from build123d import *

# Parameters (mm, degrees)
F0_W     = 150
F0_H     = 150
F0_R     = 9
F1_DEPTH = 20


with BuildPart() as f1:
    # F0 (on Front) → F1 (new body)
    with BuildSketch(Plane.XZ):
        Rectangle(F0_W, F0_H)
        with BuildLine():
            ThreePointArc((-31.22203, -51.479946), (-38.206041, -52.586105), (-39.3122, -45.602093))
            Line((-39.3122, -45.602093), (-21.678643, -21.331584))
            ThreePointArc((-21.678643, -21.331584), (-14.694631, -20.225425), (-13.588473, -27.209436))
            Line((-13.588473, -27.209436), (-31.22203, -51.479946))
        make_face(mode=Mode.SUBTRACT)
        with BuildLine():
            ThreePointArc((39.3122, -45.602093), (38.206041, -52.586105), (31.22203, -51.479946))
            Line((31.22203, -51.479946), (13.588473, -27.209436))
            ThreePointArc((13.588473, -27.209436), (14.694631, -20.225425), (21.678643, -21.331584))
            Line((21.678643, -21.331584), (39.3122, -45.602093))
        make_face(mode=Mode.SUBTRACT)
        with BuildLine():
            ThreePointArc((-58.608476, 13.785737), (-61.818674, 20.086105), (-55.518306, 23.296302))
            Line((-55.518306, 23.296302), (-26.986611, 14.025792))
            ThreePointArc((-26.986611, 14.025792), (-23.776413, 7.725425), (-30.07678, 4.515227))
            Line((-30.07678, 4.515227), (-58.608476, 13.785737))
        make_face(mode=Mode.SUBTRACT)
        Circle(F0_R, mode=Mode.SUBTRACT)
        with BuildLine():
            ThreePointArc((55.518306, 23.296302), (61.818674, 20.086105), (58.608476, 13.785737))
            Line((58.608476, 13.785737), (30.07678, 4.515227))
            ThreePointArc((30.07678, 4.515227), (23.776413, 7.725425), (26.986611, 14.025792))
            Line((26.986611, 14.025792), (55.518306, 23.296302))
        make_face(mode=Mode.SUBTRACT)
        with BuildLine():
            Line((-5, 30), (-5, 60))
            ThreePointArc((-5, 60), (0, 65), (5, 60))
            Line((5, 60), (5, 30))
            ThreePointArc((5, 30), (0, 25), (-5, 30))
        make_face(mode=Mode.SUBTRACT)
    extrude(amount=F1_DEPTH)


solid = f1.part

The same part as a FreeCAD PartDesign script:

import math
import FreeCAD as App
import Part
import Sketcher
Q = App.Units.Quantity

doc = App.newDocument("Part")
body = doc.addObject("PartDesign::Body", "Body")

sketch1 = body.newObject("Sketcher::SketchObject", "Sketch")
sketch1.AttachmentSupport = (doc.getObject("XZ_Plane"), [""])
sketch1.MapMode = "FlatFace"
sketch1.addGeometry([
    Part.LineSegment(App.Vector(-75, 75, 0), App.Vector(-75, -75, 0)),
    Part.LineSegment(App.Vector(-75, -75, 0), App.Vector(75, -75, 0)),
    Part.LineSegment(App.Vector(75, -75, 0), App.Vector(75, 75, 0)),
    Part.LineSegment(App.Vector(75, 75, 0), App.Vector(-75, 75, 0)),
    Part.LineSegment(App.Vector(-13.6, -27.2, 0), App.Vector(-31.2, -51.5, 0)),
    Part.ArcOfCircle(Part.Circle(App.Vector(-35.3, -48.5, 0), App.Vector(0, 0, 1), 5), math.radians(144), math.radians(324)),
    Part.LineSegment(App.Vector(-39.3, -45.6, 0), App.Vector(-21.7, -21.3, 0)),
    Part.ArcOfCircle(Part.Circle(App.Vector(-17.6, -24.3, 0), App.Vector(0, 0, 1), 5), math.radians(-36), math.radians(144)),
    Part.Circle(App.Vector(0, 0, 0), App.Vector(0, 0, 1), 9),
    Part.LineSegment(App.Vector(21.7, -21.3, 0), App.Vector(39.3, -45.6, 0)),
    Part.ArcOfCircle(Part.Circle(App.Vector(35.3, -48.5, 0), App.Vector(0, 0, 1), 5), math.radians(-144), math.radians(36)),
    Part.LineSegment(App.Vector(31.2, -51.5, 0), App.Vector(13.6, -27.2, 0)),
    Part.ArcOfCircle(Part.Circle(App.Vector(17.6, -24.3, 0), App.Vector(0, 0, 1), 5), math.radians(36), math.radians(216)),
    Part.LineSegment(App.Vector(-30.1, 4.5, 0), App.Vector(-58.6, 13.8, 0)),
    Part.ArcOfCircle(Part.Circle(App.Vector(-57.1, 18.5, 0), App.Vector(0, 0, 1), 5), math.radians(72), math.radians(252)),
    Part.LineSegment(App.Vector(-55.5, 23.3, 0), App.Vector(-27, 14, 0)),
    Part.ArcOfCircle(Part.Circle(App.Vector(-28.5, 9.3, 0), App.Vector(0, 0, 1), 5), math.radians(-108), math.radians(72)),
    Part.ArcOfCircle(Part.Circle(App.Vector(0, 30, 0), App.Vector(0, 0, 1), 5), math.radians(180), math.radians(360)),
    Part.LineSegment(App.Vector(-5, 30, 0), App.Vector(-5, 60, 0)),
    Part.ArcOfCircle(Part.Circle(App.Vector(0, 60, 0), App.Vector(0, 0, 1), 5), math.radians(0), math.radians(180)),
    Part.LineSegment(App.Vector(5, 60, 0), App.Vector(5, 30, 0)),
    Part.LineSegment(App.Vector(27, 14, 0), App.Vector(55.5, 23.3, 0)),
    Part.ArcOfCircle(Part.Circle(App.Vector(57.1, 18.5, 0), App.Vector(0, 0, 1), 5), math.radians(-72), math.radians(108)),
    Part.LineSegment(App.Vector(58.6, 13.8, 0), App.Vector(30.1, 4.5, 0)),
    Part.ArcOfCircle(Part.Circle(App.Vector(28.5, 9.3, 0), App.Vector(0, 0, 1), 5), math.radians(108), math.radians(288)),
], False)
sketch1.addConstraint([
    Sketcher.Constraint("Coincident", 0, 2, 1, 1),
    Sketcher.Constraint("Coincident", 1, 2, 2, 1),
    Sketcher.Constraint("Coincident", 2, 2, 3, 1),
    Sketcher.Constraint("Coincident", 3, 2, 0, 1),
    Sketcher.Constraint("Tangent", 4, 2, 5, 2),
    Sketcher.Constraint("Tangent", 5, 1, 6, 1),
    Sketcher.Constraint("Tangent", 6, 2, 7, 2),
    Sketcher.Constraint("Tangent", 7, 1, 4, 1),
    Sketcher.Constraint("Tangent", 9, 2, 10, 2),
    Sketcher.Constraint("Tangent", 10, 1, 11, 1),
    Sketcher.Constraint("Tangent", 11, 2, 12, 2),
    Sketcher.Constraint("Tangent", 12, 1, 9, 1),
    Sketcher.Constraint("Tangent", 13, 2, 14, 2),
    Sketcher.Constraint("Tangent", 14, 1, 15, 1),
    Sketcher.Constraint("Tangent", 15, 2, 16, 2),
    Sketcher.Constraint("Tangent", 16, 1, 13, 1),
    Sketcher.Constraint("Tangent", 17, 1, 18, 1),
    Sketcher.Constraint("Tangent", 18, 2, 19, 2),
    Sketcher.Constraint("Tangent", 19, 1, 20, 1),
    Sketcher.Constraint("Tangent", 20, 2, 17, 2),
    Sketcher.Constraint("Tangent", 21, 2, 22, 2),
    Sketcher.Constraint("Tangent", 22, 1, 23, 1),
    Sketcher.Constraint("Tangent", 23, 2, 24, 2),
    Sketcher.Constraint("Tangent", 24, 1, 21, 1),
    Sketcher.Constraint("Vertical", 0),
    Sketcher.Constraint("Horizontal", 1),
    Sketcher.Constraint("Vertical", 2),
    Sketcher.Constraint("Horizontal", 3),
    Sketcher.Constraint("Vertical", 18),
    Sketcher.Constraint("Vertical", 20),
    Sketcher.Constraint("Coincident", 8, 3, -1, 1),
    Sketcher.Constraint("Equal", 5, 7),
    Sketcher.Constraint("Equal", 7, 10),
    Sketcher.Constraint("Equal", 10, 12),
    Sketcher.Constraint("Equal", 12, 14),
    Sketcher.Constraint("Equal", 14, 16),
    Sketcher.Constraint("Equal", 16, 17),
    Sketcher.Constraint("Equal", 19, 22),
    Sketcher.Constraint("Equal", 22, 24),
    Sketcher.Constraint("Symmetric", 0, 2, 2, 2, -1, 1),
    Sketcher.Constraint("Symmetric", 5, 3, 10, 3, -2),
    Sketcher.Constraint("Symmetric", 7, 3, 12, 3, -2),
    Sketcher.Constraint("Symmetric", 14, 3, 22, 3, -2),
    Sketcher.Constraint("Symmetric", 16, 3, 24, 3, -2),
    Sketcher.Constraint("PointOnObject", 17, 3, -2),
    Sketcher.Constraint("Equal", 3, 0),
    Sketcher.Constraint("Equal", 11, 13),
    Sketcher.Constraint("Diameter", 8, 18.0),
    Sketcher.Constraint("Radius", 5, 5.0),
    Sketcher.Constraint("DistanceX", 1, 1, 1, 2, 150.0),
    Sketcher.Constraint("DistanceY", 18, 1, 18, 2, 30.0),
    Sketcher.Constraint("Angle", 4, Q("-125.999999 deg")),
    Sketcher.Constraint("Angle", 13, Q("162 deg")),
    Sketcher.Constraint("Distance", 4, 30.0),
    Sketcher.Constraint("DistanceY", -1, 1, 17, 3, 30.0),
    Sketcher.Constraint("DistanceX", 5, 1, -1, 1, 39.3122),
    Sketcher.Constraint("DistanceY", 21, 2, 2, 2, 51.703698),
    Sketcher.Constraint("DistanceY", 5, 3, -1, 1, 48.54102),
    Sketcher.Constraint("DistanceX", 14, 3, -1, 1, 57.063392),
])
pad1 = body.newObject("PartDesign::Pad", "Pad")
pad1.Profile = sketch1
pad1.Length = 20

doc.recompute()
